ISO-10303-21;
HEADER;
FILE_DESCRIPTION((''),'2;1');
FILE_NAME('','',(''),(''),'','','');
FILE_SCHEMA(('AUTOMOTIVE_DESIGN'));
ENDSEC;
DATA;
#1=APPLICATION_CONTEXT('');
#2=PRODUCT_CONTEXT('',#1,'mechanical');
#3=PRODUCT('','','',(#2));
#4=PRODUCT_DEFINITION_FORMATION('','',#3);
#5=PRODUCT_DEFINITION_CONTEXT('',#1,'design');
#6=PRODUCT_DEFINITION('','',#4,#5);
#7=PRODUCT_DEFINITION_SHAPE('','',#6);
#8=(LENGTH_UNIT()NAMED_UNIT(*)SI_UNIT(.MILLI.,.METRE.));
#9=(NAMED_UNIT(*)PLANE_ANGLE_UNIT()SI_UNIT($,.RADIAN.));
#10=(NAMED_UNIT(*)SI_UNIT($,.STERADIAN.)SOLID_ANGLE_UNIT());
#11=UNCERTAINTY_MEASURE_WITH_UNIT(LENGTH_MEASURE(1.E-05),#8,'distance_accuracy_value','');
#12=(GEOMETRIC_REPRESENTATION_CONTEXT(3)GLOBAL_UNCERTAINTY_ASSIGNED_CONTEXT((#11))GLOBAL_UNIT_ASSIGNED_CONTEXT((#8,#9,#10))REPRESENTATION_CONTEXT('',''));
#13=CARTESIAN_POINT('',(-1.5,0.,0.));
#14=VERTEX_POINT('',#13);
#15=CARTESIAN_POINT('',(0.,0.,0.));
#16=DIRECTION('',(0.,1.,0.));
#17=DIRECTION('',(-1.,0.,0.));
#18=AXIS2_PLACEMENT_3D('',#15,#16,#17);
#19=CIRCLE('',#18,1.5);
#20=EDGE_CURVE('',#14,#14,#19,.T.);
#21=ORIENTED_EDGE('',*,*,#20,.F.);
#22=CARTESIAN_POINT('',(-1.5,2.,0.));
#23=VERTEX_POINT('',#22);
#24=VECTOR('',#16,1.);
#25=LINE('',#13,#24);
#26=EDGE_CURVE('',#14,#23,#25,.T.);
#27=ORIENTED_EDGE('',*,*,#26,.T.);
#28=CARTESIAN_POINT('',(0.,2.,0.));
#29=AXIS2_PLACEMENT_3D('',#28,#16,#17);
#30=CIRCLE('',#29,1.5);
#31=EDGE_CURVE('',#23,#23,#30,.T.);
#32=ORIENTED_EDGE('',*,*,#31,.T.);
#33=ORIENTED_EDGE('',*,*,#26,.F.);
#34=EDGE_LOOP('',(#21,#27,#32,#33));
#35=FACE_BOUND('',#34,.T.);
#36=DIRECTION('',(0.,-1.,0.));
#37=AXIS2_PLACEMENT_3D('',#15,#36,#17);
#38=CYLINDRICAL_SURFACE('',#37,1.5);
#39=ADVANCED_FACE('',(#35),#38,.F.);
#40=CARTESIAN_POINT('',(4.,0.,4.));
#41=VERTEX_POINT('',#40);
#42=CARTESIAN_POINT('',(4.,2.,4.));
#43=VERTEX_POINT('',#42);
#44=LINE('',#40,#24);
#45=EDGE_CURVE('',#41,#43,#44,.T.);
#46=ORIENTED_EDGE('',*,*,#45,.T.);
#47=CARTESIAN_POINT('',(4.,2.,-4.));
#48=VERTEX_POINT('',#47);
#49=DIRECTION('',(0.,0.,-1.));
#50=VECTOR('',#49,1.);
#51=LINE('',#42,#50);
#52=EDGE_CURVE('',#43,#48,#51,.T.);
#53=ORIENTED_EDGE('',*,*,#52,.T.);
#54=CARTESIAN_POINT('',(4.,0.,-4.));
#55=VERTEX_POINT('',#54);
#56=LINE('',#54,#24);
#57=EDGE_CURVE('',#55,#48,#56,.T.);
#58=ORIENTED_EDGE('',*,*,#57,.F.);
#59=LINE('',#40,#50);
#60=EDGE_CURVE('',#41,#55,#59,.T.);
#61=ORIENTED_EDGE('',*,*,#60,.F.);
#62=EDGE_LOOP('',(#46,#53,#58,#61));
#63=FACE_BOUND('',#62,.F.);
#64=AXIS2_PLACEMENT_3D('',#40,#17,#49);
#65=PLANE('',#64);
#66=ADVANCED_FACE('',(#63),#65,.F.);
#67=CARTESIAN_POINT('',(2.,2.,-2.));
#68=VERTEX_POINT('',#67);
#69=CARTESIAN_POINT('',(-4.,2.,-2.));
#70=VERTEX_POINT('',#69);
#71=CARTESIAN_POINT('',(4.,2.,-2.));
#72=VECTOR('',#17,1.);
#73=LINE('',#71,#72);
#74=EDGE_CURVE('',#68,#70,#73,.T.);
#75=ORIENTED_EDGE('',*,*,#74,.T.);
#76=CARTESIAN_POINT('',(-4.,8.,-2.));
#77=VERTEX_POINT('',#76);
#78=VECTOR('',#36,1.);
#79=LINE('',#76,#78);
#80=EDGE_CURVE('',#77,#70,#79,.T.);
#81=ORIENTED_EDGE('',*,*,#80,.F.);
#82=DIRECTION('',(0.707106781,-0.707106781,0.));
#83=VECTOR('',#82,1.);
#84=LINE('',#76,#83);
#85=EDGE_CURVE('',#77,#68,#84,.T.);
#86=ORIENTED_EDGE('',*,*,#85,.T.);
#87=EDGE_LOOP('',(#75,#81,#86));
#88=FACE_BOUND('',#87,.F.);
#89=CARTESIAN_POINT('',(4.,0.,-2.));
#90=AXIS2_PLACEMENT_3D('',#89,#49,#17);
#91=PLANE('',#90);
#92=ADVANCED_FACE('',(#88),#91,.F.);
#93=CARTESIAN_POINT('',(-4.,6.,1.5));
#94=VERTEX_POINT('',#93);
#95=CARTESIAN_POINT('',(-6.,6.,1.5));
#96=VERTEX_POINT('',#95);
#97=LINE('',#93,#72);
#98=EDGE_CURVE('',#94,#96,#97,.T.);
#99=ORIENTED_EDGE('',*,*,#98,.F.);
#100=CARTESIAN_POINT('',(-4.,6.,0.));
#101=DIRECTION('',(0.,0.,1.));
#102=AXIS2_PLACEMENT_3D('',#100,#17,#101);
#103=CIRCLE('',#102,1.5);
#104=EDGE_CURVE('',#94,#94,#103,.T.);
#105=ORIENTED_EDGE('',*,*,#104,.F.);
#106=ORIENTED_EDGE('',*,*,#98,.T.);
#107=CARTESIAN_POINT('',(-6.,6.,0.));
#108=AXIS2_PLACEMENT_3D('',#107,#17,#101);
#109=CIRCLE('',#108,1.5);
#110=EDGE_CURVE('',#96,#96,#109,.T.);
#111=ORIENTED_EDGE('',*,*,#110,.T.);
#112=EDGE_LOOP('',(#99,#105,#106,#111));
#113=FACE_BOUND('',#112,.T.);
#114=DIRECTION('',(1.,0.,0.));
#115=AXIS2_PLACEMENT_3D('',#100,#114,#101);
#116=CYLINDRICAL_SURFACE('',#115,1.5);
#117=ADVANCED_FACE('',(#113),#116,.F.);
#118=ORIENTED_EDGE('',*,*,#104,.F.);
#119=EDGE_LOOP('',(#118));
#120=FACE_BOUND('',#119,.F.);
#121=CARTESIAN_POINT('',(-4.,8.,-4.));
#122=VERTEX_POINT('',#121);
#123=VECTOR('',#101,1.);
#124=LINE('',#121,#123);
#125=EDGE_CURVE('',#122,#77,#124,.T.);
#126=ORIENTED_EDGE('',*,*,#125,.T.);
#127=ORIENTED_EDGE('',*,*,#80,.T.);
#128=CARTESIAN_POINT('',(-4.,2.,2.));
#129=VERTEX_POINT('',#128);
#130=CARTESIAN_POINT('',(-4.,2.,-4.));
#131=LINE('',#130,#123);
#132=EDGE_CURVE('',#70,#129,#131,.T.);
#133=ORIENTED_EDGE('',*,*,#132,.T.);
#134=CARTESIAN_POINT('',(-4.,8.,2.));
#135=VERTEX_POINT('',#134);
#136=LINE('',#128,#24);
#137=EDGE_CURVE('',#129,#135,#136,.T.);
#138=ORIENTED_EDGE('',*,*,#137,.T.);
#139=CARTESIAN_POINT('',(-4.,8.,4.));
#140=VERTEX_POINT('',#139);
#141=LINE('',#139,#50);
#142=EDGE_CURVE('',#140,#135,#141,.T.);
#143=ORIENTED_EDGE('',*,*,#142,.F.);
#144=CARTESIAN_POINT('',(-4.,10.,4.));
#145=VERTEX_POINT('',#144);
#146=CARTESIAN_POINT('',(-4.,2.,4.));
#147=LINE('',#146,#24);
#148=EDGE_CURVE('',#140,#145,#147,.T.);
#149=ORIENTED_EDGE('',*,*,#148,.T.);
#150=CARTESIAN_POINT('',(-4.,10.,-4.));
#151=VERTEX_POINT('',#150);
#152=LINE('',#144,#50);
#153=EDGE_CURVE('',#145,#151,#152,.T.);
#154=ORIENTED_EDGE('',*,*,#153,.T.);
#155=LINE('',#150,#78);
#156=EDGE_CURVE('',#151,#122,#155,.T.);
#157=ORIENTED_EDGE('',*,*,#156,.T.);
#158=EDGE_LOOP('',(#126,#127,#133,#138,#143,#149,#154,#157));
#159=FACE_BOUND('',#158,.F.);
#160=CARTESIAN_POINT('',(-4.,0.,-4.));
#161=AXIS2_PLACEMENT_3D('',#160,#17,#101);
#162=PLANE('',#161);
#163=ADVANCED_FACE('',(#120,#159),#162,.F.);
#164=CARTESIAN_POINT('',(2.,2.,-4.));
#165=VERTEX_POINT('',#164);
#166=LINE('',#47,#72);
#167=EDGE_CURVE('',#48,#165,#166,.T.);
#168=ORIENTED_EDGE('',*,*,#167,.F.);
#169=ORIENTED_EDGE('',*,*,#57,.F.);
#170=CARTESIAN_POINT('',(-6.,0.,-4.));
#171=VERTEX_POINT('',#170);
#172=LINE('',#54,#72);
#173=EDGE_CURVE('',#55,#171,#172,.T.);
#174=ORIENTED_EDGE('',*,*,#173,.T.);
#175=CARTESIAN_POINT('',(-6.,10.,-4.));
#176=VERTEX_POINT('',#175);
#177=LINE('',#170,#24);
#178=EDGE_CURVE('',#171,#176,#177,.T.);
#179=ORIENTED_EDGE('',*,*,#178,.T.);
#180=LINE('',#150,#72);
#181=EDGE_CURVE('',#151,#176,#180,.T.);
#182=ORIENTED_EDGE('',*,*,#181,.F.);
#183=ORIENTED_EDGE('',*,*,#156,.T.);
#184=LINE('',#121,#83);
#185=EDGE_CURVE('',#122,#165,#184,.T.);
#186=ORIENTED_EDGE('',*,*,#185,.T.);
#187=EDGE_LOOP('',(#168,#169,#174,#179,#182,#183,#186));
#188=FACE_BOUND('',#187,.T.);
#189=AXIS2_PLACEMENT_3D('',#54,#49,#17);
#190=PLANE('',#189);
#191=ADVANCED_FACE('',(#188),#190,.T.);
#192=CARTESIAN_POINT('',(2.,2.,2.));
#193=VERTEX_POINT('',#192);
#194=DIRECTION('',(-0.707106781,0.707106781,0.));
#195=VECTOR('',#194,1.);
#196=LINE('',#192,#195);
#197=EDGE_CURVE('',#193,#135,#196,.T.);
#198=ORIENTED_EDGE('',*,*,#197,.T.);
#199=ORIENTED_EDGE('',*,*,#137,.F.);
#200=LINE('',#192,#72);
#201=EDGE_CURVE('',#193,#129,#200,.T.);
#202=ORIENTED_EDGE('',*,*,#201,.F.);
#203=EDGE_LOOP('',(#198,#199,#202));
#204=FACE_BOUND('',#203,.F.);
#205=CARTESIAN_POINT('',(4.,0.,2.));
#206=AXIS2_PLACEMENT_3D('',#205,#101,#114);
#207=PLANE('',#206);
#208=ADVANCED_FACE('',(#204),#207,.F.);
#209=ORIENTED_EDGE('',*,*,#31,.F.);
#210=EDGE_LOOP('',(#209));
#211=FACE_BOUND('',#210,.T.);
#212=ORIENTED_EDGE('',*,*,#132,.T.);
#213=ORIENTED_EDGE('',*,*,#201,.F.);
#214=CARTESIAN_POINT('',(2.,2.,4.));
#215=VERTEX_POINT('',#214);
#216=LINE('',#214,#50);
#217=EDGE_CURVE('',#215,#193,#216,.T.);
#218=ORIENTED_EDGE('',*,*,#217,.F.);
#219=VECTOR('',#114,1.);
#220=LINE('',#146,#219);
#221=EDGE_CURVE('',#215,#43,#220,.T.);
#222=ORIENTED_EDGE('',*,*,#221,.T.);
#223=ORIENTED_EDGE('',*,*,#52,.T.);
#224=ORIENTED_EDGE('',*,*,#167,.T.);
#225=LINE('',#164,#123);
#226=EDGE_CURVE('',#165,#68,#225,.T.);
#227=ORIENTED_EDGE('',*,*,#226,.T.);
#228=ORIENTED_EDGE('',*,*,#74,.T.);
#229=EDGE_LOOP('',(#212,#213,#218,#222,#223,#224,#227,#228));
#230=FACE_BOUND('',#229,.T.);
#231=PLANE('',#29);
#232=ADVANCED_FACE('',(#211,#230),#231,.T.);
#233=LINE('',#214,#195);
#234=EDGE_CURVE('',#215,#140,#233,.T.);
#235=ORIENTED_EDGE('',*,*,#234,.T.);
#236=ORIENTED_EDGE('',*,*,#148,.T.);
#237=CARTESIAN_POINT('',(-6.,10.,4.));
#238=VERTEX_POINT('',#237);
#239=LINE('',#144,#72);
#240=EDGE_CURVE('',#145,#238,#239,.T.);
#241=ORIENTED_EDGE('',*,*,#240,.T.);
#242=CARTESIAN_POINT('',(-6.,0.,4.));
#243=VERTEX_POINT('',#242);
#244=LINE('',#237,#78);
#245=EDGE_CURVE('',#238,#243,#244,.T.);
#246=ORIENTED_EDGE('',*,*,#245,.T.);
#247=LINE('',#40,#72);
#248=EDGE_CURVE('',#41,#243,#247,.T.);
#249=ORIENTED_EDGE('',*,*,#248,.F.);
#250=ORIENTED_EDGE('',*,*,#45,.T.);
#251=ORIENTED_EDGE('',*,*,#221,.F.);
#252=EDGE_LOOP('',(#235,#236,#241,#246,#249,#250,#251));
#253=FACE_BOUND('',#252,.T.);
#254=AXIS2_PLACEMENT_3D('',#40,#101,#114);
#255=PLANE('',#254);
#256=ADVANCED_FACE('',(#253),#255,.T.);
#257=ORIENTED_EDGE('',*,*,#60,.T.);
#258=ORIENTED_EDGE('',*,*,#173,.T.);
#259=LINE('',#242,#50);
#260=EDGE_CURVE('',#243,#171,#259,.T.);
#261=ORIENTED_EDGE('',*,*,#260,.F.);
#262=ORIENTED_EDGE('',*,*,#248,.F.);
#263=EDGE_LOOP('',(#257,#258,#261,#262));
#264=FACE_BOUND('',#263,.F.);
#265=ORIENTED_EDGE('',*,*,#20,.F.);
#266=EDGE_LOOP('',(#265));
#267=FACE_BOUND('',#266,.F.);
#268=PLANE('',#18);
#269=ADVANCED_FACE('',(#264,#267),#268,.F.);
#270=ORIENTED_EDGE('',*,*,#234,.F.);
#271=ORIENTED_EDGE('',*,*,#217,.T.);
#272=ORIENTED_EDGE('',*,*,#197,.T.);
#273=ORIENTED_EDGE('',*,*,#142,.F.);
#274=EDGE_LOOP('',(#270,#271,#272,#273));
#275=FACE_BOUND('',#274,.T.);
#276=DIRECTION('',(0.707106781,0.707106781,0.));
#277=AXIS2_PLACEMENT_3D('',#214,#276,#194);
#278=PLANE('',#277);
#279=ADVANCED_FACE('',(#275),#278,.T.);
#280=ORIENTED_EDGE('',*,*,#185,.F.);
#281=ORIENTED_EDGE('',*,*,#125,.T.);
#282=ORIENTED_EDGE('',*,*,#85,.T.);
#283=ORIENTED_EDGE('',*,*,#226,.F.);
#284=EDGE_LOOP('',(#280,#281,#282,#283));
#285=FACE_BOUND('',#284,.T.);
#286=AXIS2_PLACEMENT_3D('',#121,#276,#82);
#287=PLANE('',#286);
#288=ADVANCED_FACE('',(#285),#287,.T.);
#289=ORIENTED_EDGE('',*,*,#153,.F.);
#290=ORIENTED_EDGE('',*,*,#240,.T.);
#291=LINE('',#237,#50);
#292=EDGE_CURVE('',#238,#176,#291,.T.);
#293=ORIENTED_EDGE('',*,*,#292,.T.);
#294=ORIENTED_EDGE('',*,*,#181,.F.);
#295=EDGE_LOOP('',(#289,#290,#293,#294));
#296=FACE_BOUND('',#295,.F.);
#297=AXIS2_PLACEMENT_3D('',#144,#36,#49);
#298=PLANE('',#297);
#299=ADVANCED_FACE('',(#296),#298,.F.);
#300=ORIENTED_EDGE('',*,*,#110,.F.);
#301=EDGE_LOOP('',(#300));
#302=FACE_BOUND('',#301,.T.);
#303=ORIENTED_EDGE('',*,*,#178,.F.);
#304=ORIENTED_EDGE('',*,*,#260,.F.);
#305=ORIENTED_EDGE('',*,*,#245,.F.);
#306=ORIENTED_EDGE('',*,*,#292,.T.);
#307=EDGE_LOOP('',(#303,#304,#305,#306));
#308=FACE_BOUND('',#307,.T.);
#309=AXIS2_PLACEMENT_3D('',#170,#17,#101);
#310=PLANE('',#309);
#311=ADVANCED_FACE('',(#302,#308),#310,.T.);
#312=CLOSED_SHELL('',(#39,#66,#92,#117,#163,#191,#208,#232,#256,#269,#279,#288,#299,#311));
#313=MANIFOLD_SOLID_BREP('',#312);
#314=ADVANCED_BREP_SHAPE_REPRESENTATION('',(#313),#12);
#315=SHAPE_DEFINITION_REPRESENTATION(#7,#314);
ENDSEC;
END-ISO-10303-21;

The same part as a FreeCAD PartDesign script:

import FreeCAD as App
import Part
import Sketcher

V = App.Vector
Q = App.Units.Quantity

doc = App.newDocument("Part")
body = doc.addObject("PartDesign::Body", "Body")

# Sketch on XZ plane
sketch1 = body.newObject("Sketcher::SketchObject", "Sketch")
sketch1.AttachmentSupport = (doc.getObject("XZ_Plane"), [""])
sketch1.MapMode = "FlatFace"
sketch1.addGeometry([
    Part.LineSegment(V(-4, -4, 0), V(-4, 4, 0)),  # 0
    Part.LineSegment(V(-4, 4, 0), V(4, 4, 0)),  # 1
    Part.LineSegment(V(4, 4, 0), V(4, -4, 0)),  # 2
    Part.LineSegment(V(4, -4, 0), V(-4, -4, 0)),  # 3
    Part.Circle(V(0, 0, 0), V(0, 0, 1), 1.5),  # 4
], False)
sketch1.addConstraint([
    Sketcher.Constraint("Coincident", 0, 2, 1, 1),
    Sketcher.Constraint("Coincident", 1, 2, 2, 1),
    Sketcher.Constraint("Coincident", 2, 2, 3, 1),
    Sketcher.Constraint("Coincident", 3, 2, 0, 1),
    Sketcher.Constraint("Vertical", 0),
    Sketcher.Constraint("Horizontal", 1),
    Sketcher.Constraint("Vertical", 2),
    Sketcher.Constraint("Horizontal", 3),
    Sketcher.Constraint("Coincident", 4, 3, -1, 1),
    Sketcher.Constraint("Symmetric", 0, 2, 2, 2, -1, 1),
    Sketcher.Constraint("Equal", 3, 0),
    Sketcher.Constraint("Diameter", 4, Q("3 mm")),
    Sketcher.Constraint("DistanceX", 1, 1, 1, 2, Q("8 mm")),
])
pad1 = body.newObject("PartDesign::Pad", "Pad")
pad1.Profile = sketch1
pad1.Length = 2
pad1.Reversed = True

# Sketch on YZ plane
sketch2 = body.newObject("Sketcher::SketchObject", "Sketch001")
sketch2.AttachmentSupport = (doc.getObject("YZ_Plane"), [""])
sketch2.MapMode = "FlatFace"
sketch2.AttachmentOffset = App.Placement(V(0, 0, -4), App.Rotation())
sketch2.addGeometry([
    Part.LineSegment(V(0, 4, 0), V(10, 4, 0)),  # 0
    Part.LineSegment(V(10, 4, 0), V(10, -4, 0)),  # 1
    Part.LineSegment(V(10, -4, 0), V(0, -4, 0)),  # 2
    Part.LineSegment(V(0, -4, 0), V(0, 4, 0)),  # 3
    Part.Circle(V(6, 0, 0), V(0, 0, 1), 1.5),  # 4
], False)
sketch2.addConstraint([
    Sketcher.Constraint("Coincident", 0, 2, 1, 1),
    Sketcher.Constraint("Coincident", 1, 2, 2, 1),
    Sketcher.Constraint("Coincident", 2, 2, 3, 1),
    Sketcher.Constraint("Coincident", 3, 2, 0, 1),
    Sketcher.Constraint("Horizontal", 0),
    Sketcher.Constraint("Vertical", 1),
    Sketcher.Constraint("Horizontal", 2),
    Sketcher.Constraint("Vertical", 3),
    Sketcher.Constraint("Symmetric", 2, 2, 3, 2, -1, 1),
    Sketcher.Constraint("PointOnObject", 4, 3, -1),
    Sketcher.Constraint("Diameter", 4, Q("3 mm")),
    Sketcher.Constraint("DistanceX", 0, 1, 0, 2, Q("10 mm")),
    Sketcher.Constraint("DistanceY", 1, 2, 1, 1, Q("8 mm")),
    Sketcher.Constraint("DistanceX", -1, 1, 4, 3, Q("6 mm")),
])
pad2 = body.newObject("PartDesign::Pad", "Pad001")
pad2.Profile = sketch2
pad2.Length = 2
pad2.Reversed = True

# Sketch on XY plane
sketch3 = body.newObject("Sketcher::SketchObject", "Sketch002")
sketch3.AttachmentSupport = (doc.getObject("XY_Plane"), [""])
sketch3.MapMode = "FlatFace"
sketch3.AttachmentOffset = App.Placement(V(0, 0, 4), App.Rotation())
sketch3.addGeometry([
    Part.LineSegment(V(-4, 8, 0), V(-4, 2, 0)),
    Part.LineSegment(V(-4, 2, 0), V(2, 2, 0)),
    Part.LineSegment(V(2, 2, 0), V(-4, 8, 0)),
], False)
sketch3.addConstraint([
    Sketcher.Constraint("Coincident", 0, 2, 1, 1),
    Sketcher.Constraint("Coincident", 1, 2, 2, 1),
    Sketcher.Constraint("Coincident", 2, 2, 0, 1),
    Sketcher.Constraint("Vertical", 0),
    Sketcher.Constraint("Horizontal", 1),
    Sketcher.Constraint("Equal", 1, 0),
    Sketcher.Constraint("DistanceY", -1, 1, 0, 2, Q("2 mm")),
    Sketcher.Constraint("DistanceX", -1, 1, 1, 2, Q("2 mm")),
    Sketcher.Constraint("DistanceX", 1, 1, 1, 2, Q("6 mm")),
])
pad3 = body.newObject("PartDesign::Pad", "Pad002")
pad3.Profile = sketch3
pad3.Length = 2
pad3.Reversed = True

# Sketch on XY plane
sketch4 = body.newObject("Sketcher::SketchObject", "Sketch003")
sketch4.AttachmentSupport = (doc.getObject("XY_Plane"), [""])
sketch4.MapMode = "FlatFace"
sketch4.AttachmentOffset = App.Placement(V(0, 0, -4), App.Rotation())
sketch4.addGeometry([
    Part.LineSegment(V(-4, 8, 0), V(2, 2, 0)),
    Part.LineSegment(V(2, 2, 0), V(-4, 2, 0)),
    Part.LineSegment(V(-4, 2, 0), V(-4, 8, 0)),
], False)
sketch4.addConstraint([
    Sketcher.Constraint("Coincident", 0, 2, 1, 1),
    Sketcher.Constraint("Coincident", 1, 2, 2, 1),
    Sketcher.Constraint("Coincident", 2, 2, 0, 1),
    Sketcher.Constraint("Horizontal", 1),
    Sketcher.Constraint("Vertical", 2),
    Sketcher.Constraint("Equal", 1, 2),
    Sketcher.Constraint("DistanceX", 1, 2, 1, 1, Q("6 mm")),
    Sketcher.Constraint("DistanceX", -1, 1, 0, 2, Q("2 mm")),
    Sketcher.Constraint("DistanceY", -1, 1, 0, 2, Q("2 mm")),
])
pad4 = body.newObject("PartDesign::Pad", "Pad003")
pad4.Profile = sketch4
pad4.Length = 2

doc.recompute()
